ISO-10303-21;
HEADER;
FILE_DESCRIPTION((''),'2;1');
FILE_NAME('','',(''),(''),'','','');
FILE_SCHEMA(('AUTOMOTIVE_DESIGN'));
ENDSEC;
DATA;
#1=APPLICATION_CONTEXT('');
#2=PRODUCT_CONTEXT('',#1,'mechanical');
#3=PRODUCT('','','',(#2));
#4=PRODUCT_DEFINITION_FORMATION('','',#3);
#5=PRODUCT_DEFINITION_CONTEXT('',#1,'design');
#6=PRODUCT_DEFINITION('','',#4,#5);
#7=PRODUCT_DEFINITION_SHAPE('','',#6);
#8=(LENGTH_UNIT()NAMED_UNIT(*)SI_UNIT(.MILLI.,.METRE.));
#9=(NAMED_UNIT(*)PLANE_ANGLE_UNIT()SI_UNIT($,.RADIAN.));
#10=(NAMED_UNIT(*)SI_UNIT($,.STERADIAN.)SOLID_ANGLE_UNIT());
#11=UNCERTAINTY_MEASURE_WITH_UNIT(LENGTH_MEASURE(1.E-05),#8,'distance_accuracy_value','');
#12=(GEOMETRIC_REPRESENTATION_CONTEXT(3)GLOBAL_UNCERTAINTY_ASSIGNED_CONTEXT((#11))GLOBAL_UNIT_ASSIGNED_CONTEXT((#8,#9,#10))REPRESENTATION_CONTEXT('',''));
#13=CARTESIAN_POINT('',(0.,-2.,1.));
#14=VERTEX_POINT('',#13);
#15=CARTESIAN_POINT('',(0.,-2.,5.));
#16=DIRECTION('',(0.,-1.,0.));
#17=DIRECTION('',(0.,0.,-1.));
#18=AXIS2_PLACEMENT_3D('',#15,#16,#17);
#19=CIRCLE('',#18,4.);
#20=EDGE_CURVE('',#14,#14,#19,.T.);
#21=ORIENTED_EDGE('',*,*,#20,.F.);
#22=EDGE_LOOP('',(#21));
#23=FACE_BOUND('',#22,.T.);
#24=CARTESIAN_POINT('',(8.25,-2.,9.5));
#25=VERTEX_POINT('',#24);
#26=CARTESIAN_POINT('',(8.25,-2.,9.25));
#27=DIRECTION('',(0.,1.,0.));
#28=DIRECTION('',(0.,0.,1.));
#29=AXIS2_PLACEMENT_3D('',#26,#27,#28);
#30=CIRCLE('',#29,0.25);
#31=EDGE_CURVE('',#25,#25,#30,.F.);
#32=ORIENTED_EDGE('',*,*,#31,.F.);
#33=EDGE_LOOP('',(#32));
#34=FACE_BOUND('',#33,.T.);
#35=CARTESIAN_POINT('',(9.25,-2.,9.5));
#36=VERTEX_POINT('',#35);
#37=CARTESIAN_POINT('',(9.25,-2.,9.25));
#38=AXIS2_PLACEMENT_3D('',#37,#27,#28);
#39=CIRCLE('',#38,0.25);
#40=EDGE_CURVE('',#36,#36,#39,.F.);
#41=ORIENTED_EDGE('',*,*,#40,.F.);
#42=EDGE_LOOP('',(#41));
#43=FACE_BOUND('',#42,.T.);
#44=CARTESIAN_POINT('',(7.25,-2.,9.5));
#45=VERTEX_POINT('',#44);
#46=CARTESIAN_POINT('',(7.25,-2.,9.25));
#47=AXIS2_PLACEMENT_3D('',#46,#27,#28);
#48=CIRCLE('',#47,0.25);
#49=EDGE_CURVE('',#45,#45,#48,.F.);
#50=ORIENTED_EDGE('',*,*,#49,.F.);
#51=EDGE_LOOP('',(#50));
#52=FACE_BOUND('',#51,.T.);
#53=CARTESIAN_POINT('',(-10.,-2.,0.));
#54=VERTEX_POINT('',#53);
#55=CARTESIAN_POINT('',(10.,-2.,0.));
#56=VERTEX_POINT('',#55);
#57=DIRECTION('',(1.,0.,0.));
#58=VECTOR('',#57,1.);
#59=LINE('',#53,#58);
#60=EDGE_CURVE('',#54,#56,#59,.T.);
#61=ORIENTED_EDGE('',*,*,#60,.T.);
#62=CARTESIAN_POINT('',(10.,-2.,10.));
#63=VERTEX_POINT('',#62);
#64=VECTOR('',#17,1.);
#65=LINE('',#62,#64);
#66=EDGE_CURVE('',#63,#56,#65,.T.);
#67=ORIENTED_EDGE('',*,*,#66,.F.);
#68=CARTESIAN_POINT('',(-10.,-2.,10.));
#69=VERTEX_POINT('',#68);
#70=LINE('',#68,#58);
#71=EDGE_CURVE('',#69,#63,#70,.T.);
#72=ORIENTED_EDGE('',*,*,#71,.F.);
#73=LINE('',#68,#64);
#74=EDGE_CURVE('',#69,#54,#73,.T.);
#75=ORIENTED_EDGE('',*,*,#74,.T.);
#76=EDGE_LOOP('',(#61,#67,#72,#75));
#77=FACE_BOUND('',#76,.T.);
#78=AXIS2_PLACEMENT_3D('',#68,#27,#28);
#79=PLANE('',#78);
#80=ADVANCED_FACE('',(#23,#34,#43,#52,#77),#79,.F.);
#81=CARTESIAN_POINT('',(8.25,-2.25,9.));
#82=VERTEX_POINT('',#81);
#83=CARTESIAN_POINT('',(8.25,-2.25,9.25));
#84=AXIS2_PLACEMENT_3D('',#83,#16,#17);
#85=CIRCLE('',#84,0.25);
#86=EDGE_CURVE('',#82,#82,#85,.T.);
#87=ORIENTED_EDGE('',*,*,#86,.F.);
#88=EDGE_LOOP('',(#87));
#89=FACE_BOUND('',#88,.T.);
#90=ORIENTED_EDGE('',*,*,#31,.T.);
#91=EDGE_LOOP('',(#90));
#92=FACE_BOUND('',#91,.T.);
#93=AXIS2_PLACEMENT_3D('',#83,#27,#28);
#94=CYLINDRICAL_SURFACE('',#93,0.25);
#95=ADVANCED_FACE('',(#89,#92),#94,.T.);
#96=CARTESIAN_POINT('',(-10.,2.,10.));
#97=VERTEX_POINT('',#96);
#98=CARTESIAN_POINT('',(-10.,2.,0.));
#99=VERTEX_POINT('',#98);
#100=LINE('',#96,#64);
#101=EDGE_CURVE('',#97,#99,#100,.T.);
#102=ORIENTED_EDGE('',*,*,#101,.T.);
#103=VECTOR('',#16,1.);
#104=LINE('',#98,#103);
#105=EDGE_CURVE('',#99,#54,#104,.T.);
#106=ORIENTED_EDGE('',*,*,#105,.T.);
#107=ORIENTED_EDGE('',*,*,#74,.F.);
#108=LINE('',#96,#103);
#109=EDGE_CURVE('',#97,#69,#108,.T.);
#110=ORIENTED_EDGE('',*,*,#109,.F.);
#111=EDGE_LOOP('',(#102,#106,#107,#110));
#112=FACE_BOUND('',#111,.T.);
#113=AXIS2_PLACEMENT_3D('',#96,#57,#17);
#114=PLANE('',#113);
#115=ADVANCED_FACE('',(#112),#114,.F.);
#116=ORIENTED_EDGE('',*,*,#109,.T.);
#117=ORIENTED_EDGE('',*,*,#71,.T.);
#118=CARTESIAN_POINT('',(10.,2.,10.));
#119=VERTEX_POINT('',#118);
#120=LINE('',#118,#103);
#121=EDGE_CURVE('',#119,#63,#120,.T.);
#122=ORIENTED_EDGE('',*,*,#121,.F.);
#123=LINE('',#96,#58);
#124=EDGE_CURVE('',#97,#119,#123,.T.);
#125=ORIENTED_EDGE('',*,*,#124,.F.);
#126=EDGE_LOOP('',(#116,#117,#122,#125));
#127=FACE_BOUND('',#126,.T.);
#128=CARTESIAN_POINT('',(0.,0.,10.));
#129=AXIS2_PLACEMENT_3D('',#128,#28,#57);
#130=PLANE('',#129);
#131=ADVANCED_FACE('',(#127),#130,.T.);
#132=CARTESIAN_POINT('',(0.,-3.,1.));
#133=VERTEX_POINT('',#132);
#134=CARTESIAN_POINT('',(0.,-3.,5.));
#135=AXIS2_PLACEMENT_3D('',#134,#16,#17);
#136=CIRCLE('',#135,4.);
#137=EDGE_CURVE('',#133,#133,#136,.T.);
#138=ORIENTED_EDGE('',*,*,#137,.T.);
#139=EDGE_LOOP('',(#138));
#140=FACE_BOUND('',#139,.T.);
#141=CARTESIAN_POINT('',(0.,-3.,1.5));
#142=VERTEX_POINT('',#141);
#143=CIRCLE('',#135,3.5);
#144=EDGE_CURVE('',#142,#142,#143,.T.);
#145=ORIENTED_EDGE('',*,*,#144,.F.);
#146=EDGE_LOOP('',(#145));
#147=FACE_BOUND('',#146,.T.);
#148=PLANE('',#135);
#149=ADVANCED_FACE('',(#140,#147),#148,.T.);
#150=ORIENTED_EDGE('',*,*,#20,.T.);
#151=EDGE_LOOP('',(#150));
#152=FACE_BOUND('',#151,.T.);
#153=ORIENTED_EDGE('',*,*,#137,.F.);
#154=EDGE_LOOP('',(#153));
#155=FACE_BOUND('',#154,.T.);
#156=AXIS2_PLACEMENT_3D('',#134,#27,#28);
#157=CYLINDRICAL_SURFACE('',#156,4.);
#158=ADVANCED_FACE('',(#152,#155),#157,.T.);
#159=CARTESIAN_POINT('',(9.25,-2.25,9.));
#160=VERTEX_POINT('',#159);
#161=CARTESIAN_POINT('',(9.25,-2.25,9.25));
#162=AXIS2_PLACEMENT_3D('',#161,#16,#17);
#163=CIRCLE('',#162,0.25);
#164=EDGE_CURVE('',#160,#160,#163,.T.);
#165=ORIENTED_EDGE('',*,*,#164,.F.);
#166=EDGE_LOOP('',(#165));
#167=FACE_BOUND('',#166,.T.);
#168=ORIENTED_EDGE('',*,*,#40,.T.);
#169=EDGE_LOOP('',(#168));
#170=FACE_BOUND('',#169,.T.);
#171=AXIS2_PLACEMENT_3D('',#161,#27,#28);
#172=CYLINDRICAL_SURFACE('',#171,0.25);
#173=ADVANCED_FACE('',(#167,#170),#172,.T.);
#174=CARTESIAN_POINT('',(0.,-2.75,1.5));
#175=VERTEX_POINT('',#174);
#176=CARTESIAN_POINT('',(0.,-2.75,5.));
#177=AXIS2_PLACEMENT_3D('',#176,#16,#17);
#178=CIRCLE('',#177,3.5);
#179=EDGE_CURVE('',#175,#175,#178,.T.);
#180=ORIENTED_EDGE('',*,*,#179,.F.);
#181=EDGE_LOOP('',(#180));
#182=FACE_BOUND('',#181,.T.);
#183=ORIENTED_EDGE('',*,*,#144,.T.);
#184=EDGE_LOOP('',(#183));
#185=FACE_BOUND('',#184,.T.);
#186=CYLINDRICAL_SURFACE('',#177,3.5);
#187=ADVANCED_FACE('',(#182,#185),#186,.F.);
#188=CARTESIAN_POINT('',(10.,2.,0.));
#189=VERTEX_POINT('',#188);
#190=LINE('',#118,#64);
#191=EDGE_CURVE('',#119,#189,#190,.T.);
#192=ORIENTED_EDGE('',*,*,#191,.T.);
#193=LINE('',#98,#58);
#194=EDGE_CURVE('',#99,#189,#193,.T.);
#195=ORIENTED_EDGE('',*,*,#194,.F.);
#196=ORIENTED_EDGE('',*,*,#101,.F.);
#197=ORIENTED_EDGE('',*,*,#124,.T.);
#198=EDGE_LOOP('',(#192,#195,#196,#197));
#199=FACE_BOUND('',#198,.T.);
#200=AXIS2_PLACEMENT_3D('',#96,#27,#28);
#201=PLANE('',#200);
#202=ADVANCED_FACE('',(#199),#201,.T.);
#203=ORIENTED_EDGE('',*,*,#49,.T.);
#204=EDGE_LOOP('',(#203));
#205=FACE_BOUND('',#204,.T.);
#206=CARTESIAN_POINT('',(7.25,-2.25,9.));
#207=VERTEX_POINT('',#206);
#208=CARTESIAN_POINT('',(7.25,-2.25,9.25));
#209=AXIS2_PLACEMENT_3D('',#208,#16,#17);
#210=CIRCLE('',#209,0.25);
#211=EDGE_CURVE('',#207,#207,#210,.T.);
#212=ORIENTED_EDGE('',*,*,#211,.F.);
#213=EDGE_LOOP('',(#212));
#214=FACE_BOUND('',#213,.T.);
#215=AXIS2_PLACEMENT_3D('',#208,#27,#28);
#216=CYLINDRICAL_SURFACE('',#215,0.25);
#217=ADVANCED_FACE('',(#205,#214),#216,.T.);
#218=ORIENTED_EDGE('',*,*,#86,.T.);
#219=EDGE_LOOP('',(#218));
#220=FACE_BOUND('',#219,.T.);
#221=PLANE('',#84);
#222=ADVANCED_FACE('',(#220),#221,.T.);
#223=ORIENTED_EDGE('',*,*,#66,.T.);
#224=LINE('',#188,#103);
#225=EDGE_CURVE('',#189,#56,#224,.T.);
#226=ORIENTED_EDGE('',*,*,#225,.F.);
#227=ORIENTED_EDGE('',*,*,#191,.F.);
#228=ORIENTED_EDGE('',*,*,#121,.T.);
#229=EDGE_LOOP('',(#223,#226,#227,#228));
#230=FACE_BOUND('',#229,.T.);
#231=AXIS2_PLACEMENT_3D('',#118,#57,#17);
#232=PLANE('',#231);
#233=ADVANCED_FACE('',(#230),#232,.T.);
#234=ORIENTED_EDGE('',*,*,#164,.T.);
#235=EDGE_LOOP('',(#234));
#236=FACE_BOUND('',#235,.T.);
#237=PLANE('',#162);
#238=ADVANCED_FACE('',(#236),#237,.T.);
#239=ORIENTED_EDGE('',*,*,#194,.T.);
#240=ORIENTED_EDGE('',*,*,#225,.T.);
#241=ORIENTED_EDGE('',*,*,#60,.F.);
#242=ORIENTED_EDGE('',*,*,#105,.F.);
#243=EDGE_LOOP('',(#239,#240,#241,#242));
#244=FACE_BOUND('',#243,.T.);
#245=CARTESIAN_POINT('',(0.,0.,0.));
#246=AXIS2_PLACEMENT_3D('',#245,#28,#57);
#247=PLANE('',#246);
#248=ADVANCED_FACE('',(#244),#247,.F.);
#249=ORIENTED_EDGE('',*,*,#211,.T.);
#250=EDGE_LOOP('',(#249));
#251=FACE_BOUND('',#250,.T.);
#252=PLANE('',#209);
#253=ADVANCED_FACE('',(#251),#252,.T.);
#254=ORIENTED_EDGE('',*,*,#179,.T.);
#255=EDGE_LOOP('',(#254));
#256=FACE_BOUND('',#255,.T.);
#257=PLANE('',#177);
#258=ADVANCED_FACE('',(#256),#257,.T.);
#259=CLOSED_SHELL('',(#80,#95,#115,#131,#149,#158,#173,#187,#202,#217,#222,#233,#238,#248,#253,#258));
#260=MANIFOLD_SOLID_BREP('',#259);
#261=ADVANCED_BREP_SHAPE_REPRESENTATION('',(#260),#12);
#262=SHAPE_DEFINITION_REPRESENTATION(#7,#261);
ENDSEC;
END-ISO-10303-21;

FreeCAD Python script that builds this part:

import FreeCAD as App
import Part
import Sketcher

doc = App.newDocument("Part")
params = doc.addObject("Spreadsheet::Sheet", "Params")
for row, (alias, value) in enumerate([
    ("sketch1_width", "20 mm"),
    ("sketch1_height", "4 mm"),
    ("pad1_length", "10 mm"),
    ("sketch2_diameter", "8 mm"),
    ("pad2_length", "1 mm"),
    ("sketch3_diameter", "7 mm"),
    ("pocket1_length", "0.25 mm"),
    ("sketch4_diameter", "0.5 mm"),
    ("pad3_length", "0.25 mm"),
], start=1):
    params.set(f"A{row}", alias)
    params.set(f"B{row}", "=" + value)
    params.setAlias(f"B{row}", alias)

body = doc.addObject("PartDesign::Body", "Body")

# Sketch on XY plane
sketch1 = doc.addObject("Sketcher::SketchObject", "Sketch")
body.addObject(sketch1)
sketch1.AttachmentSupport = (doc.XY_Plane, [""])
sketch1.MapMode = "FlatFace"
sketch1.addGeometry([
    Part.LineSegment(App.Vector(-10, 2, 0), App.Vector(-10, -2, 0)),
    Part.LineSegment(App.Vector(-10, -2, 0), App.Vector(10, -2, 0)),
    Part.LineSegment(App.Vector(10, -2, 0), App.Vector(10, 2, 0)),
    Part.LineSegment(App.Vector(10, 2, 0), App.Vector(-10, 2, 0)),
], False)
sketch1.addConstraint([
    Sketcher.Constraint("Coincident", 0, 2, 1, 1),
    Sketcher.Constraint("Coincident", 1, 2, 2, 1),
    Sketcher.Constraint("Coincident", 2, 2, 3, 1),
    Sketcher.Constraint("Coincident", 3, 2, 0, 1),
    Sketcher.Constraint("Vertical", 0),
    Sketcher.Constraint("Horizontal", 1),
    Sketcher.Constraint("Vertical", 2),
    Sketcher.Constraint("Horizontal", 3),
    Sketcher.Constraint("Symmetric", 0, 2, 2, 2, -1, 1),
    Sketcher.Constraint("DistanceX", 1, 1, 1, 2, 20.0),
    Sketcher.Constraint("DistanceY", 0, 2, 0, 1, 4.0),
])
sketch1.setExpression("Constraints[9]", "Params.sketch1_width")
sketch1.setExpression("Constraints[10]", "Params.sketch1_height")
pad1 = doc.addObject("PartDesign::Pad", "Pad")
body.addObject(pad1)
pad1.Profile = sketch1
pad1.setExpression("Length", "Params.pad1_length")

# Sketch on XZ plane
sketch2 = doc.addObject("Sketcher::SketchObject", "Sketch001")
body.addObject(sketch2)
sketch2.AttachmentSupport = (doc.XZ_Plane, [""])
sketch2.MapMode = "FlatFace"
sketch2.AttachmentOffset = App.Placement(App.Vector(0, 0, 2), App.Rotation())
sketch2.addGeometry(Part.Circle(App.Vector(0, 5, 0), App.Vector(0, 0, 1), 4), False)
sketch2.addConstraint([
    Sketcher.Constraint("PointOnObject", 0, 3, -2),
    Sketcher.Constraint("Diameter", 0, 8.0),
    Sketcher.Constraint("DistanceY", -1, 1, 0, 3, 5.0),
])
sketch2.setExpression("Constraints[1]", "Params.sketch2_diameter")
pad2 = doc.addObject("PartDesign::Pad", "Pad001")
body.addObject(pad2)
pad2.Profile = sketch2
pad2.setExpression("Length", "Params.pad2_length")

# Sketch on XZ plane
sketch3 = doc.addObject("Sketcher::SketchObject", "Sketch002")
body.addObject(sketch3)
sketch3.AttachmentSupport = (doc.XZ_Plane, [""])
sketch3.MapMode = "FlatFace"
sketch3.AttachmentOffset = App.Placement(App.Vector(0, 0, 3), App.Rotation())
sketch3.addGeometry(Part.Circle(App.Vector(0, 5, 0), App.Vector(0, 0, 1), 3.5), False)
sketch3.addConstraint([
    Sketcher.Constraint("PointOnObject", 0, 3, -2),
    Sketcher.Constraint("Diameter", 0, 7.0),
    Sketcher.Constraint("DistanceY", -1, 1, 0, 3, 5.0),
])
sketch3.setExpression("Constraints[1]", "Params.sketch3_diameter")
pocket1 = doc.addObject("PartDesign::Pocket", "Pocket")
body.addObject(pocket1)
pocket1.Profile = sketch3
pocket1.setExpression("Length", "Params.pocket1_length")

# Sketch on XZ plane
sketch4 = doc.addObject("Sketcher::SketchObject", "Sketch003")
body.addObject(sketch4)
sketch4.AttachmentSupport = (doc.XZ_Plane, [""])
sketch4.MapMode = "FlatFace"
sketch4.AttachmentOffset = App.Placement(App.Vector(0, 0, 2), App.Rotation())
sketch4.addGeometry([
    Part.Circle(App.Vector(7.25, 9.25, 0), App.Vector(0, 0, 1), 0.25),
    Part.Circle(App.Vector(8.25, 9.25, 0), App.Vector(0, 0, 1), 0.25),
    Part.Circle(App.Vector(9.25, 9.25, 0), App.Vector(0, 0, 1), 0.25),
], False)
sketch4.addConstraint([
    Sketcher.Constraint("Equal", 0, 1),
    Sketcher.Constraint("Equal", 1, 2),
    Sketcher.Constraint("Horizontal", 0, 3, 1, 3),
    Sketcher.Constraint("Horizontal", 1, 3, 2, 3),
    Sketcher.Constraint("Diameter", 0, 0.5),
    Sketcher.Constraint("DistanceX", 0, 3, 1, 3, 1.0),
    Sketcher.Constraint("DistanceX", 1, 3, 2, 3, 1.0),
    Sketcher.Constraint("DistanceX", -1, 1, 0, 3, 7.25),
    Sketcher.Constraint("DistanceY", -1, 1, 0, 3, 9.25),
])
sketch4.setExpression("Constraints[4]", "Params.sketch4_diameter")
pad3 = doc.addObject("PartDesign::Pad", "Pad002")
body.addObject(pad3)
pad3.Profile = sketch4
pad3.setExpression("Length", "Params.pad3_length")

doc.recompute()
